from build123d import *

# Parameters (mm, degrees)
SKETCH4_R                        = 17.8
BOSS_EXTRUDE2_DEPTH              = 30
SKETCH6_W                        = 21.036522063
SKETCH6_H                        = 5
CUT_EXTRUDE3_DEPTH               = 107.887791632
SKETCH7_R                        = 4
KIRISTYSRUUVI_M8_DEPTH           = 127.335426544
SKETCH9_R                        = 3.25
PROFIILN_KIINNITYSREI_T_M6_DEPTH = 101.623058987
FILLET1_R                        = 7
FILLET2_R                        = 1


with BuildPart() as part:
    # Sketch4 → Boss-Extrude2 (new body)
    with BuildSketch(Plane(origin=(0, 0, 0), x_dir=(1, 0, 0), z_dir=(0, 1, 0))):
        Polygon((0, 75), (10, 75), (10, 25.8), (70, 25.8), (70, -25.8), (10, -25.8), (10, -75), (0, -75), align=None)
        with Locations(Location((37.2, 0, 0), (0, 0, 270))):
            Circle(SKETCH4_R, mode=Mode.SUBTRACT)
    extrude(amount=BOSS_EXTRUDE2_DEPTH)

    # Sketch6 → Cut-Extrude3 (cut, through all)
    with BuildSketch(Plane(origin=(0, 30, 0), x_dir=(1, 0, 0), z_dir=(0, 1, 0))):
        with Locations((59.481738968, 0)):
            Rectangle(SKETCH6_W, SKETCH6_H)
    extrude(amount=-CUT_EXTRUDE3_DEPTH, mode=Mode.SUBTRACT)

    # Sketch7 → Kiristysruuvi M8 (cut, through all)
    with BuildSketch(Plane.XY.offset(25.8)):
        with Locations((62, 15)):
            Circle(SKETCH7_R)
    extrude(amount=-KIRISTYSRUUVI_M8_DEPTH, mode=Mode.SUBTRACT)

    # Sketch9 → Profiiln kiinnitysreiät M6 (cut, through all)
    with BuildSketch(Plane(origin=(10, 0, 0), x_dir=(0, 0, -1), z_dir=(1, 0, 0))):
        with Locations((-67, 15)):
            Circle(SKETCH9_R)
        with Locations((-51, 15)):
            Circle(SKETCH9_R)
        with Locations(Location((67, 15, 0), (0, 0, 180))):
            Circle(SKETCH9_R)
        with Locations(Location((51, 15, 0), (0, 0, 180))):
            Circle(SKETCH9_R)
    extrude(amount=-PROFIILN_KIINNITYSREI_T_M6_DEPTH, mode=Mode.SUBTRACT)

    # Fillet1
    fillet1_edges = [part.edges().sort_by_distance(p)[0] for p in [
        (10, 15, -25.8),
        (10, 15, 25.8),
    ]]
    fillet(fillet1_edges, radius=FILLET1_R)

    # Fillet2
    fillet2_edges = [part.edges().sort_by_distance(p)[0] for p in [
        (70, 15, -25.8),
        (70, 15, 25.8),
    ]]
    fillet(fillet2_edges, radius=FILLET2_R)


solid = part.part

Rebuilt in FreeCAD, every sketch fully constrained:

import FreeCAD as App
import Part
import Sketcher
Q = App.Units.Quantity


def edges_at(feature, points):
    """Names of the edges that pass closest to the given points."""
    edges = feature.Shape.Edges
    near = lambda p: min(range(len(edges)), key=lambda i: edges[i].distToShape(Part.Vertex(*p))[0])
    return sorted({f"Edge{near(p) + 1}" for p in points})

doc = App.newDocument("Part")
params = doc.addObject("Spreadsheet::Sheet", "Params")
for row, (alias, value) in enumerate([
    ("sketch1_diameter", "35.6 mm"),
    ("sketch1_width", "10 mm"),
    ("sketch1_width2", "60 mm"),
    ("sketch1_height", "150 mm"),
    ("sketch1_height2", "49.2 mm"),
    ("pad1_length", "30 mm"),
    ("sketch2_height", "5 mm"),
    ("sketch3_diameter", "8 mm"),
    ("sketch4_diameter", "6.5 mm"),
    ("fillet_radius", "7 mm"),
    ("fillet2_radius", "1 mm"),
], start=1):
    params.set(f"A{row}", alias)
    params.set(f"B{row}", "=" + value)
    params.setAlias(f"B{row}", alias)

body = doc.addObject("PartDesign::Body", "Body")

sketch1 = doc.addObject("Sketcher::SketchObject", "Sketch")
body.addObject(sketch1)
sketch1.AttachmentSupport = (doc.XZ_Plane, [""])
sketch1.MapMode = "FlatFace"
sketch1.addGeometry(Part.LineSegment(App.Vector(10, -75, 0), App.Vector(0, -75, 0)), False)
sketch1.addGeometry(Part.LineSegment(App.Vector(0, -75, 0), App.Vector(0, 75, 0)), False)
sketch1.addGeometry(Part.LineSegment(App.Vector(0, 75, 0), App.Vector(10, 75, 0)), False)
sketch1.addGeometry(Part.LineSegment(App.Vector(10, 75, 0), App.Vector(10, 26, 0)), False)
sketch1.addGeometry(Part.LineSegment(App.Vector(10, 26, 0), App.Vector(70, 26, 0)), False)
sketch1.addGeometry(Part.LineSegment(App.Vector(70, 26, 0), App.Vector(70, -26, 0)), False)
sketch1.addGeometry(Part.LineSegment(App.Vector(70, -26, 0), App.Vector(10, -26, 0)), False)
sketch1.addGeometry(Part.LineSegment(App.Vector(10, -26, 0), App.Vector(10, -75, 0)), False)
sketch1.addGeometry(Part.Circle(App.Vector(37, 0, 0), App.Vector(0, 0, 1), 18), False)
sketch1.addConstraint(Sketcher.Constraint("Coincident", 0, 2, 1, 1))
sketch1.addConstraint(Sketcher.Constraint("Coincident", 1, 2, 2, 1))
sketch1.addConstraint(Sketcher.Constraint("Coincident", 2, 2, 3, 1))
sketch1.addConstraint(Sketcher.Constraint("Coincident", 3, 2, 4, 1))
sketch1.addConstraint(Sketcher.Constraint("Coincident", 4, 2, 5, 1))
sketch1.addConstraint(Sketcher.Constraint("Coincident", 5, 2, 6, 1))
sketch1.addConstraint(Sketcher.Constraint("Coincident", 6, 2, 7, 1))
sketch1.addConstraint(Sketcher.Constraint("Coincident", 7, 2, 0, 1))
sketch1.addConstraint(Sketcher.Constraint("Horizontal", 0))
sketch1.addConstraint(Sketcher.Constraint("Vertical", 1))
sketch1.addConstraint(Sketcher.Constraint("Horizontal", 2))
sketch1.addConstraint(Sketcher.Constraint("Vertical", 3))
sketch1.addConstraint(Sketcher.Constraint("Horizontal", 4))
sketch1.addConstraint(Sketcher.Constraint("Vertical", 5))
sketch1.addConstraint(Sketcher.Constraint("Horizontal", 6))
sketch1.addConstraint(Sketcher.Constraint("Vertical", 7))
sketch1.addConstraint(Sketcher.Constraint("Symmetric", 0, 2, 1, 2, -1, 1))
sketch1.addConstraint(Sketcher.Constraint("Symmetric", 3, 2, 6, 2, -1))
sketch1.addConstraint(Sketcher.Constraint("PointOnObject", 8, 3, -1))
sketch1.addConstraint(Sketcher.Constraint("Diameter", 8, Q("35.6 mm")))
sketch1.addConstraint(Sketcher.Constraint("DistanceX", 0, 2, 0, 1, Q("10 mm")))
sketch1.addConstraint(Sketcher.Constraint("DistanceX", 4, 1, 4, 2, Q("60 mm")))
sketch1.addConstraint(Sketcher.Constraint("DistanceY", 1, 1, 1, 2, Q("150 mm")))
sketch1.addConstraint(Sketcher.Constraint("DistanceY", 3, 2, 3, 1, Q("49.2 mm")))
sketch1.addConstraint(Sketcher.Constraint("DistanceX", -1, 1, 8, 3, Q("37.2 mm")))
sketch1.setExpression("Constraints[19]", "Params.sketch1_diameter")
sketch1.setExpression("Constraints[20]", "Params.sketch1_width")
sketch1.setExpression("Constraints[21]", "Params.sketch1_width2")
sketch1.setExpression("Constraints[22]", "Params.sketch1_height")
sketch1.setExpression("Constraints[23]", "Params.sketch1_height2")
pad1 = doc.addObject("PartDesign::Pad", "Pad")
body.addObject(pad1)
pad1.Profile = sketch1
pad1.setExpression("Length", "Params.pad1_length")
pad1.Reversed = True

sketch2 = doc.addObject("Sketcher::SketchObject", "Sketch001")
body.addObject(sketch2)
sketch2.AttachmentSupport = (doc.XZ_Plane, [""])
sketch2.MapMode = "FlatFace"
sketch2.AttachmentOffset = App.Placement(App.Vector(0, 0, -30), App.Rotation())
sketch2.addGeometry(Part.LineSegment(App.Vector(49, -2, 0), App.Vector(49, 2, 0)), False)
sketch2.addGeometry(Part.LineSegment(App.Vector(49, 2, 0), App.Vector(70, 2, 0)), False)
sketch2.addGeometry(Part.LineSegment(App.Vector(70, 2, 0), App.Vector(70, -2, 0)), False)
sketch2.addGeometry(Part.LineSegment(App.Vector(70, -2, 0), App.Vector(49, -2, 0)), False)
sketch2.addConstraint(Sketcher.Constraint("Coincident", 0, 2, 1, 1))
sketch2.addConstraint(Sketcher.Constraint("Coincident", 1, 2, 2, 1))
sketch2.addConstraint(Sketcher.Constraint("Coincident", 2, 2, 3, 1))
sketch2.addConstraint(Sketcher.Constraint("Coincident", 3, 2, 0, 1))
sketch2.addConstraint(Sketcher.Constraint("Vertical", 0))
sketch2.addConstraint(Sketcher.Constraint("Horizontal", 1))
sketch2.addConstraint(Sketcher.Constraint("Vertical", 2))
sketch2.addConstraint(Sketcher.Constraint("Horizontal", 3))
sketch2.addConstraint(Sketcher.Constraint("DistanceY", 0, 1, 0, 2, Q("5 mm")))
sketch2.addConstraint(Sketcher.Constraint("DistanceX", -1, 1, 1, 2, Q("70 mm")))
sketch2.addConstraint(Sketcher.Constraint("DistanceY", -1, 1, 0, 2, Q("2.5 mm")))
sketch2.addConstraint(Sketcher.Constraint("DistanceX", 1, 1, 1, 2, Q("21.036522 mm")))
sketch2.setExpression("Constraints[8]", "Params.sketch2_height")
pocket1 = doc.addObject("PartDesign::Pocket", "Pocket")
body.addObject(pocket1)
pocket1.Profile = sketch2
pocket1.Type = "ThroughAll"
pocket1.Reversed = True

sketch3 = doc.addObject("Sketcher::SketchObject", "Sketch002")
body.addObject(sketch3)
sketch3.AttachmentSupport = (doc.XY_Plane, [""])
sketch3.MapMode = "FlatFace"
sketch3.AttachmentOffset = App.Placement(App.Vector(0, 0, 25.8), App.Rotation())
sketch3.addGeometry(Part.Circle(App.Vector(62, 15, 0), App.Vector(0, 0, 1), 4), False)
sketch3.addConstraint(Sketcher.Constraint("Diameter", 0, Q("8 mm")))
sketch3.addConstraint(Sketcher.Constraint("DistanceX", -1, 1, 0, 3, Q("62 mm")))
sketch3.addConstraint(Sketcher.Constraint("DistanceY", -1, 1, 0, 3, Q("15 mm")))
sketch3.setExpression("Constraints[0]", "Params.sketch3_diameter")
pocket2 = doc.addObject("PartDesign::Pocket", "Pocket001")
body.addObject(pocket2)
pocket2.Profile = sketch3
pocket2.Type = "ThroughAll"

sketch4 = doc.addObject("Sketcher::SketchObject", "Sketch003")
body.addObject(sketch4)
sketch4.AttachmentSupport = (doc.YZ_Plane, [""])
sketch4.MapMode = "FlatFace"
sketch4.AttachmentOffset = App.Placement(App.Vector(0, 0, 10), App.Rotation())
sketch4.addGeometry(Part.Circle(App.Vector(15, 67, 0), App.Vector(0, 0, 1), 3.2), False)
sketch4.addGeometry(Part.Circle(App.Vector(15, 51, 0), App.Vector(0, 0, 1), 3.2), False)
sketch4.addGeometry(Part.Circle(App.Vector(15, -67, 0), App.Vector(0, 0, 1), 3.2), False)
sketch4.addGeometry(Part.Circle(App.Vector(15, -51, 0), App.Vector(0, 0, 1), 3.2), False)
sketch4.addConstraint(Sketcher.Constraint("Equal", 0, 1))
sketch4.addConstraint(Sketcher.Constraint("Equal", 1, 2))
sketch4.addConstraint(Sketcher.Constraint("Equal", 2, 3))
sketch4.addConstraint(Sketcher.Constraint("Symmetric", 0, 3, 2, 3, -1))
sketch4.addConstraint(Sketcher.Constraint("Symmetric", 1, 3, 3, 3, -1))
sketch4.addConstraint(Sketcher.Constraint("Vertical", 0, 3, 1, 3))
sketch4.addConstraint(Sketcher.Constraint("Diameter", 0, Q("6.5 mm")))
sketch4.addConstraint(Sketcher.Constraint("DistanceX", -1, 1, 0, 3, Q("15 mm")))
sketch4.addConstraint(Sketcher.Constraint("DistanceY", -1, 1, 0, 3, Q("67 mm")))
sketch4.addConstraint(Sketcher.Constraint("DistanceY", -1, 1, 1, 3, Q("51 mm")))
sketch4.setExpression("Constraints[6]", "Params.sketch4_diameter")
pocket3 = doc.addObject("PartDesign::Pocket", "Pocket002")
body.addObject(pocket3)
pocket3.Profile = sketch4
pocket3.Type = "ThroughAll"
doc.recompute()

fillet = doc.addObject("PartDesign::Fillet", "Fillet")
body.addObject(fillet)
fillet.Base = (pocket3, edges_at(pocket3, [(10, 15, -25.8), (10, 15, 25.8)]))
fillet.setExpression("Radius", "Params.fillet_radius")
doc.recompute()

fillet2 = doc.addObject("PartDesign::Fillet", "Fillet001")
body.addObject(fillet2)
fillet2.Base = (fillet, edges_at(fillet, [(70, 15, -25.8), (70, 15, 25.8)]))
fillet2.setExpression("Radius", "Params.fillet2_radius")

doc.recompute()
